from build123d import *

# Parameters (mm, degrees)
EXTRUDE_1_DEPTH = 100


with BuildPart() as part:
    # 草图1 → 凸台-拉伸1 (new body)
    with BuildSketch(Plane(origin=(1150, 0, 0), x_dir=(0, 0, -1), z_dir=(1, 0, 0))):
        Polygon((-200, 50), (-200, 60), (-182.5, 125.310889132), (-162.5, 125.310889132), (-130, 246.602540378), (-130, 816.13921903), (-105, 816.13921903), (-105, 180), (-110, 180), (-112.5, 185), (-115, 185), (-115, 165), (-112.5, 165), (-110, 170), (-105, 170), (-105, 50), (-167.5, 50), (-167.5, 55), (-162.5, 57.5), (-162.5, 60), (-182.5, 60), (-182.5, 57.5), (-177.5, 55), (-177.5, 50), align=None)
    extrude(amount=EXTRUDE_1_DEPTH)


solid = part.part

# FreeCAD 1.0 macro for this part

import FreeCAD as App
import Part
import Sketcher
from FreeCAD import Vector
Q = App.Units.Quantity


def add_polygon(sketch, points):
    """Adds a closed chain of lines whose ends are joined by coincident constraints."""
    first, n = sketch.GeometryCount, len(points)
    for a, b in zip(points, points[1:] + points[:1]):
        sketch.addGeometry(Part.LineSegment(App.Vector(*a, 0), App.Vector(*b, 0)), False)
    for i in range(n):
        sketch.addConstraint(Sketcher.Constraint("Coincident", first + i, 2, first + (i + 1) % n, 1))

doc = App.newDocument("Part")
body = doc.addObject("PartDesign::Body", "Body")

# Sketch on YZ plane
sketch1 = doc.addObject("Sketcher::SketchObject", "Sketch")
body.addObject(sketch1)
sketch1.AttachmentSupport = (doc.YZ_Plane, [""])
sketch1.MapMode = "FlatFace"
sketch1.AttachmentOffset = App.Placement(Vector(0, 0, 1150), App.Rotation())
add_polygon(sketch1, [(60, 200), (50, 200), (50, 177.5), (55, 177.5), (57.5, 182.5), (60, 182.5), (60, 162.5), (57.5, 162.5), (55, 167.5), (50, 167.5), (50, 105), (170, 105), (170, 110), (165, 112.5), (165, 115), (185, 115), (185, 112.5), (180, 110), (180, 105), (816.1, 105), (816.1, 130), (246.6, 130), (125.3, 162.5), (125.3, 182.5)])  # lines 0-23
sketch1.addConstraint([
    Sketcher.Constraint("Horizontal", 0),
    Sketcher.Constraint("Vertical", 1),
    Sketcher.Constraint("Horizontal", 2),
    Sketcher.Constraint("Horizontal", 4),
    Sketcher.Constraint("Vertical", 5),
    Sketcher.Constraint("Horizontal", 6),
    Sketcher.Constraint("Horizontal", 8),
    Sketcher.Constraint("Vertical", 9),
    Sketcher.Constraint("Horizontal", 10),
    Sketcher.Constraint("Vertical", 11),
    Sketcher.Constraint("Vertical", 13),
    Sketcher.Constraint("Horizontal", 14),
    Sketcher.Constraint("Vertical", 15),
    Sketcher.Constraint("Vertical", 17),
    Sketcher.Constraint("Horizontal", 18),
    Sketcher.Constraint("Vertical", 19),
    Sketcher.Constraint("Horizontal", 20),
    Sketcher.Constraint("Vertical", 22),
    Sketcher.Constraint("Perpendicular", 3, 12),
    Sketcher.Constraint("Perpendicular", 7, 16),
    Sketcher.Constraint("Parallel", 21, 23),
    Sketcher.Constraint("Horizontal", 12, 2, 15, 2),
    Sketcher.Constraint("Horizontal", 11, 2, 16, 2),
    Sketcher.Constraint("Horizontal", 10, 2, 17, 2),
    Sketcher.Constraint("Horizontal", 6, 2, 21, 2),
    Sketcher.Constraint("Horizontal", 4, 2, 22, 2),
    Sketcher.Constraint("Vertical", 3, 2, 6, 2),
    Sketcher.Constraint("Vertical", 2, 2, 7, 2),
    Sketcher.Constraint("Vertical", 1, 2, 8, 2),
    Sketcher.Constraint("Vertical", 5, 2, 23, 2),
    Sketcher.Constraint("Equal", 14, 5),
    Sketcher.Constraint("Equal", 8, 11),
    Sketcher.Constraint("Equal", 6, 13),
    Sketcher.Constraint("Equal", 3, 7),
    Sketcher.Constraint("Equal", 7, 12),
    Sketcher.Constraint("DistanceX", 0, 2, 0, 1, Q("10 mm")),
    Sketcher.Constraint("DistanceX", 2, 1, 2, 2, Q("5 mm")),
    Sketcher.Constraint("DistanceX", 10, 1, 10, 2, Q("120 mm")),
    Sketcher.Constraint("DistanceX", 14, 1, 14, 2, Q("20 mm")),
    Sketcher.Constraint("DistanceY", 19, 1, 19, 2, Q("25 mm")),
    Sketcher.Constraint("Angle", 21, Q("165 deg")),
    Sketcher.Constraint("DistanceX", 4, 1, 4, 2, Q("2.5 mm")),
    Sketcher.Constraint("DistanceY", 1, 2, 1, 1, Q("22.5 mm")),
    Sketcher.Constraint("DistanceY", 9, 2, 9, 1, Q("62.5 mm")),
    Sketcher.Constraint("DistanceX", -1, 1, 0, 2, Q("50 mm")),
    Sketcher.Constraint("DistanceY", -1, 1, 0, 2, Q("200 mm")),
    Sketcher.Constraint("DistanceY", -1, 1, 9, 2, Q("105 mm")),
    Sketcher.Constraint("DistanceX", 18, 1, 18, 2, Q("636.139219 mm")),
])
pad1 = doc.addObject("PartDesign::Pad", "Pad")
body.addObject(pad1)
pad1.Profile = sketch1
pad1.Length = 100

doc.recompute()
